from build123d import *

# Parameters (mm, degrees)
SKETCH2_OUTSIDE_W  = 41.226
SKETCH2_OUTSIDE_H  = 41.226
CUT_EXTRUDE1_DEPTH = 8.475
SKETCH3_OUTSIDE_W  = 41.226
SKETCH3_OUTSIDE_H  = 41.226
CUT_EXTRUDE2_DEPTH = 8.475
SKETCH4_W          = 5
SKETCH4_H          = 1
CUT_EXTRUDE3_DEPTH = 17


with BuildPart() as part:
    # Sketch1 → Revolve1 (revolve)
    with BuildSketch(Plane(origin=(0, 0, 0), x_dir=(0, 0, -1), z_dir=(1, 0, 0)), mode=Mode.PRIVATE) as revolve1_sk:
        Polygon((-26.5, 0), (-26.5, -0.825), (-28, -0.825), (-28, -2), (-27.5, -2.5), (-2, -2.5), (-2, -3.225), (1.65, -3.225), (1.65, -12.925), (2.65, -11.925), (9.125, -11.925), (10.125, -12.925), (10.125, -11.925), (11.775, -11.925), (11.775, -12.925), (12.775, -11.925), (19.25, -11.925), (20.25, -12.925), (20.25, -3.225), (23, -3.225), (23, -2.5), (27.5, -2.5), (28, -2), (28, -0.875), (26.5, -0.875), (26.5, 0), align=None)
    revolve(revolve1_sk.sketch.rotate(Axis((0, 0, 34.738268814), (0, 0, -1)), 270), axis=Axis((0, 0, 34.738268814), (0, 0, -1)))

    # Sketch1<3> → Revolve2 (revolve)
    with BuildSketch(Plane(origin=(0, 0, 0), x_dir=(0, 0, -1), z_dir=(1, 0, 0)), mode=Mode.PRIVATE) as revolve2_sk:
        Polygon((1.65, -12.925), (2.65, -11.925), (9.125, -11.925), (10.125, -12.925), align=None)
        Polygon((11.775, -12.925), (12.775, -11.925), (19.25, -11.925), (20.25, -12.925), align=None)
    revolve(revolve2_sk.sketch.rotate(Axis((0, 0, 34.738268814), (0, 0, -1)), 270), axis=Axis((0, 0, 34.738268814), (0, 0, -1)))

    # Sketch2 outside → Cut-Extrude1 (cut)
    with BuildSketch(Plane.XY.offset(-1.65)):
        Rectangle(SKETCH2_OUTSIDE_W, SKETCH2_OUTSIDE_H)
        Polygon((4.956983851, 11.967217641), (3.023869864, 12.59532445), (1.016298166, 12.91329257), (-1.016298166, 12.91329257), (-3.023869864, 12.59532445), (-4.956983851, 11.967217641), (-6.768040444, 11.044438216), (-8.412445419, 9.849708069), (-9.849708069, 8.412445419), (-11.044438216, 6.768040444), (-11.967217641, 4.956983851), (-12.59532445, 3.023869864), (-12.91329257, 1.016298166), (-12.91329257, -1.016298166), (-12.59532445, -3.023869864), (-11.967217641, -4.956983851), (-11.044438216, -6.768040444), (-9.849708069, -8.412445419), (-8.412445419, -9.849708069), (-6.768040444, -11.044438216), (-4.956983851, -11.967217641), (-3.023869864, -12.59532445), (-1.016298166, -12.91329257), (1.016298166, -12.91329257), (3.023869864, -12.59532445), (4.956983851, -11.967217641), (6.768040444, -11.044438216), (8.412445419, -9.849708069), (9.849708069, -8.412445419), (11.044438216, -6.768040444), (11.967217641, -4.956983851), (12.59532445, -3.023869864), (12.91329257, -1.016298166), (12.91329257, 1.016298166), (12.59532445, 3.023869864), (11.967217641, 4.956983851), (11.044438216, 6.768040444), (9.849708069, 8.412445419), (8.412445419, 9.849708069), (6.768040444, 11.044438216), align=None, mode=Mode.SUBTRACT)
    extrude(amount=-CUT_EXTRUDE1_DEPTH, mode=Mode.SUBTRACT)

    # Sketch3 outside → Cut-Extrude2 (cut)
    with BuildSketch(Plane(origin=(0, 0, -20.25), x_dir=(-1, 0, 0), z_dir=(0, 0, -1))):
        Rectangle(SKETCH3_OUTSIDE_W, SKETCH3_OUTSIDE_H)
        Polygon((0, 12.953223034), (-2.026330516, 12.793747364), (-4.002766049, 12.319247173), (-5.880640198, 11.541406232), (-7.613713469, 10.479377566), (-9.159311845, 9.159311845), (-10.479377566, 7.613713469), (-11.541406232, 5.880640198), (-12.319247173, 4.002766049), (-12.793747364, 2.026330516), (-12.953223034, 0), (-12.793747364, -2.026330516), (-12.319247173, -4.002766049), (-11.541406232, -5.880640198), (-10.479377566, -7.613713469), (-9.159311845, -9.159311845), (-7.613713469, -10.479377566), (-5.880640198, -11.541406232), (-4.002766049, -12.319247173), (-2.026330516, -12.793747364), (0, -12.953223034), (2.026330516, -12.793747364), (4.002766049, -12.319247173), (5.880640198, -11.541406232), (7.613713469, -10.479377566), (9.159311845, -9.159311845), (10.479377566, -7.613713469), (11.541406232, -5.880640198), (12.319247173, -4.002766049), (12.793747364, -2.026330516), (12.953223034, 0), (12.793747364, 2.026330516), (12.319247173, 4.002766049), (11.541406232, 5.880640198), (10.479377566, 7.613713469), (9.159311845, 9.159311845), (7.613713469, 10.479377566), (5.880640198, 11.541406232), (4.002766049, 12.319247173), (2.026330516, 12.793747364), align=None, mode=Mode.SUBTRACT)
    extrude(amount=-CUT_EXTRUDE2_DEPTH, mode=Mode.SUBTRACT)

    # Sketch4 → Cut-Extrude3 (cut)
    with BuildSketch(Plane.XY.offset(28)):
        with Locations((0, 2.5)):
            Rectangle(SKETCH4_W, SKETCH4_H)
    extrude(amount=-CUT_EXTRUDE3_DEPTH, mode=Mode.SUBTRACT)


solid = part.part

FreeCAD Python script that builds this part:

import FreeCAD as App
import Part
import Sketcher
from FreeCAD import Vector
Q = App.Units.Quantity

doc = App.newDocument("Part")
body = doc.addObject("PartDesign::Body", "Body")

sketch1 = body.newObject("Sketcher::SketchObject", "Sketch")
sketch1.AttachmentSupport = (doc.getObject("YZ_Plane"), [""])
sketch1.MapMode = "FlatFace"
sketch1.addGeometry([
    Part.LineSegment(Vector(0, 26.5, 0), Vector(-0.825, 26.5, 0)),
    Part.LineSegment(Vector(-0.825, 26.5, 0), Vector(-0.825, 28, 0)),
    Part.LineSegment(Vector(-0.825, 28, 0), Vector(-2, 28, 0)),
    Part.LineSegment(Vector(-2, 28, 0), Vector(-2.5, 27.5, 0)),
    Part.LineSegment(Vector(-2.5, 27.5, 0), Vector(-2.5, 2, 0)),
    Part.LineSegment(Vector(-2.5, 2, 0), Vector(-3.225, 2, 0)),
    Part.LineSegment(Vector(-3.225, 2, 0), Vector(-3.225, -1.65, 0)),
    Part.LineSegment(Vector(-3.225, -1.65, 0), Vector(-12.925, -1.65, 0)),
    Part.LineSegment(Vector(-12.925, -1.65, 0), Vector(-11.925, -2.65, 0)),
    Part.LineSegment(Vector(-11.925, -2.65, 0), Vector(-11.925, -9.125, 0)),
    Part.LineSegment(Vector(-11.925, -9.125, 0), Vector(-12.925, -10.125, 0)),
    Part.LineSegment(Vector(-12.925, -10.125, 0), Vector(-11.925, -10.125, 0)),
    Part.LineSegment(Vector(-11.925, -10.125, 0), Vector(-11.925, -11.775, 0)),
    Part.LineSegment(Vector(-11.925, -11.775, 0), Vector(-12.925, -11.775, 0)),
    Part.LineSegment(Vector(-12.925, -11.775, 0), Vector(-11.925, -12.775, 0)),
    Part.LineSegment(Vector(-11.925, -12.775, 0), Vector(-11.925, -19.25, 0)),
    Part.LineSegment(Vector(-11.925, -19.25, 0), Vector(-12.925, -20.25, 0)),
    Part.LineSegment(Vector(-12.925, -20.25, 0), Vector(-3.225, -20.25, 0)),
    Part.LineSegment(Vector(-3.225, -20.25, 0), Vector(-3.225, -23, 0)),
    Part.LineSegment(Vector(-3.225, -23, 0), Vector(-2.5, -23, 0)),
    Part.LineSegment(Vector(-2.5, -23, 0), Vector(-2.5, -27.5, 0)),
    Part.LineSegment(Vector(-2.5, -27.5, 0), Vector(-2, -28, 0)),
    Part.LineSegment(Vector(-2, -28, 0), Vector(-0.875, -28, 0)),
    Part.LineSegment(Vector(-0.875, -28, 0), Vector(-0.875, -26.5, 0)),
    Part.LineSegment(Vector(-0.875, -26.5, 0), Vector(0, -26.5, 0)),
    Part.LineSegment(Vector(0, -26.5, 0), Vector(0, 26.5, 0)),
], False)
sketch1.addConstraint([
    Sketcher.Constraint("Coincident", 0, 2, 1, 1),
    Sketcher.Constraint("Coincident", 1, 2, 2, 1),
    Sketcher.Constraint("Coincident", 2, 2, 3, 1),
    Sketcher.Constraint("Coincident", 3, 2, 4, 1),
    Sketcher.Constraint("Coincident", 4, 2, 5, 1),
    Sketcher.Constraint("Coincident", 5, 2, 6, 1),
    Sketcher.Constraint("Coincident", 6, 2, 7, 1),
    Sketcher.Constraint("Coincident", 7, 2, 8, 1),
    Sketcher.Constraint("Coincident", 8, 2, 9, 1),
    Sketcher.Constraint("Coincident", 9, 2, 10, 1),
    Sketcher.Constraint("Coincident", 10, 2, 11, 1),
    Sketcher.Constraint("Coincident", 11, 2, 12, 1),
    Sketcher.Constraint("Coincident", 12, 2, 13, 1),
    Sketcher.Constraint("Coincident", 13, 2, 14, 1),
    Sketcher.Constraint("Coincident", 14, 2, 15, 1),
    Sketcher.Constraint("Coincident", 15, 2, 16, 1),
    Sketcher.Constraint("Coincident", 16, 2, 17, 1),
    Sketcher.Constraint("Coincident", 17, 2, 18, 1),
    Sketcher.Constraint("Coincident", 18, 2, 19, 1),
    Sketcher.Constraint("Coincident", 19, 2, 20, 1),
    Sketcher.Constraint("Coincident", 20, 2, 21, 1),
    Sketcher.Constraint("Coincident", 21, 2, 22, 1),
    Sketcher.Constraint("Coincident", 22, 2, 23, 1),
    Sketcher.Constraint("Coincident", 23, 2, 24, 1),
    Sketcher.Constraint("Coincident", 24, 2, 25, 1),
    Sketcher.Constraint("Coincident", 25, 2, 0, 1),
    Sketcher.Constraint("Horizontal", 0),
    Sketcher.Constraint("Vertical", 1),
    Sketcher.Constraint("Horizontal", 2),
    Sketcher.Constraint("Vertical", 4),
    Sketcher.Constraint("Horizontal", 5),
    Sketcher.Constraint("Vertical", 6),
    Sketcher.Constraint("Horizontal", 7),
    Sketcher.Constraint("Vertical", 9),
    Sketcher.Constraint("Horizontal", 11),
    Sketcher.Constraint("Vertical", 12),
    Sketcher.Constraint("Horizontal", 13),
    Sketcher.Constraint("Vertical", 15),
    Sketcher.Constraint("Horizontal", 17),
    Sketcher.Constraint("Vertical", 18),
    Sketcher.Constraint("Horizontal", 19),
    Sketcher.Constraint("Vertical", 20),
    Sketcher.Constraint("Horizontal", 22),
    Sketcher.Constraint("Vertical", 23),
    Sketcher.Constraint("Horizontal", 24),
    Sketcher.Constraint("Vertical", 25),
    Sketcher.Constraint("Symmetric", 24, 2, 25, 2, -1, 1),
    Sketcher.Constraint("Symmetric", 3, 2, 20, 2, -1),
    Sketcher.Constraint("Symmetric", 2, 2, 21, 2, -1),
    Sketcher.Constraint("Perpendicular", 3, 8),
    Sketcher.Constraint("Perpendicular", 8, 10),
    Sketcher.Constraint("Perpendicular", 10, 14),
    Sketcher.Constraint("Perpendicular", 14, 16),
    Sketcher.Constraint("Perpendicular", 16, 21),
    Sketcher.Constraint("Vertical", 7, 2, 10, 2),
    Sketcher.Constraint("Vertical", 9, 2, 11, 2),
    Sketcher.Constraint("Vertical", 10, 2, 13, 2),
    Sketcher.Constraint("Vertical", 12, 2, 14, 2),
    Sketcher.Constraint("Vertical", 13, 2, 16, 2),
    Sketcher.Constraint("Vertical", 6, 2, 17, 2),
    Sketcher.Constraint("Equal", 9, 15),
    Sketcher.Constraint("DistanceX", 11, 1, 11, 2, 1.0),
    Sketcher.Constraint("DistanceY", 25, 1, 25, 2, 53.0),
    Sketcher.Constraint("DistanceX", 7, 2, 7, 1, 9.7),
    Sketcher.Constraint("DistanceY", 1, 1, 1, 2, 1.5),
    Sketcher.Constraint("DistanceY", 4, 2, 4, 1, 25.5),
    Sketcher.Constraint("DistanceY", 20, 2, 20, 1, 4.5),
    Sketcher.Constraint("DistanceX", 2, 2, -1, 1, 2.0),
    Sketcher.Constraint("DistanceY", -1, 1, 4, 2, 2.0),
    Sketcher.Constraint("DistanceY", 6, 2, 6, 1, 3.65),
    Sketcher.Constraint("DistanceY", 12, 2, 12, 1, 1.65),
    Sketcher.Constraint("DistanceY", 18, 2, 18, 1, 2.75),
    Sketcher.Constraint("DistanceX", 5, 2, 0, 2, 2.4),
    Sketcher.Constraint("DistanceX", 0, 2, 0, 1, 0.825),
    Sketcher.Constraint("DistanceX", 22, 1, 22, 2, 1.125),
])
revolution = body.newObject("PartDesign::Revolution", "Revolution")
revolution.Profile = sketch1
revolution.ReferenceAxis = (sketch1, ["V_Axis"])
revolution.Angle = 360

sketch2 = body.newObject("Sketcher::SketchObject", "Sketch001")
sketch2.AttachmentSupport = (doc.getObject("YZ_Plane"), [""])
sketch2.MapMode = "FlatFace"
sketch2.addGeometry([
    Part.LineSegment(Vector(-11.925, -2.65, 0), Vector(-12.925, -1.65, 0)),
    Part.LineSegment(Vector(-12.925, -1.65, 0), Vector(-12.925, -10.125, 0)),
    Part.LineSegment(Vector(-12.925, -10.125, 0), Vector(-11.925, -9.125, 0)),
    Part.LineSegment(Vector(-11.925, -9.125, 0), Vector(-11.925, -2.65, 0)),
    Part.LineSegment(Vector(-11.925, -12.775, 0), Vector(-12.925, -11.775, 0)),
    Part.LineSegment(Vector(-12.925, -11.775, 0), Vector(-12.925, -20.25, 0)),
    Part.LineSegment(Vector(-12.925, -20.25, 0), Vector(-11.925, -19.25, 0)),
    Part.LineSegment(Vector(-11.925, -19.25, 0), Vector(-11.925, -12.775, 0)),
], False)
sketch2.addConstraint([
    Sketcher.Constraint("Coincident", 0, 2, 1, 1),
    Sketcher.Constraint("Coincident", 1, 2, 2, 1),
    Sketcher.Constraint("Coincident", 2, 2, 3, 1),
    Sketcher.Constraint("Coincident", 3, 2, 0, 1),
    Sketcher.Constraint("Coincident", 4, 2, 5, 1),
    Sketcher.Constraint("Coincident", 5, 2, 6, 1),
    Sketcher.Constraint("Coincident", 6, 2, 7, 1),
    Sketcher.Constraint("Coincident", 7, 2, 4, 1),
    Sketcher.Constraint("Vertical", 1),
    Sketcher.Constraint("Vertical", 3),
    Sketcher.Constraint("Vertical", 5),
    Sketcher.Constraint("Vertical", 7),
    Sketcher.Constraint("Perpendicular", 0, 2),
    Sketcher.Constraint("Perpendicular", 2, 4),
    Sketcher.Constraint("Perpendicular", 4, 6),
    Sketcher.Constraint("Vertical", 1, 2, 4, 2),
    Sketcher.Constraint("Vertical", 3, 2, 6, 2),
    Sketcher.Constraint("Equal", 1, 5),
    Sketcher.Constraint("Equal", 0, 2),
    Sketcher.Constraint("DistanceX", 1, 2, 2, 2, 1.0),
    Sketcher.Constraint("DistanceY", 5, 2, 3, 2, 17.6),
    Sketcher.Constraint("DistanceY", 1, 2, 1, 1, 8.475),
    Sketcher.Constraint("DistanceY", 0, 2, -1, 1, 1.65),
    Sketcher.Constraint("DistanceX", 0, 2, -1, 1, 12.925),
])
revolution2 = body.newObject("PartDesign::Revolution", "Revolution001")
revolution2.Profile = sketch2
revolution2.ReferenceAxis = (sketch2, ["V_Axis"])
revolution2.Angle = 360

sketch3 = body.newObject("Sketcher::SketchObject", "Sketch002")
sketch3.AttachmentSupport = (doc.getObject("XY_Plane"), [""])
sketch3.MapMode = "FlatFace"
sketch3.AttachmentOffset = App.Placement(Vector(0, 0, -1.65), App.Rotation())
sketch3.addGeometry([
    Part.LineSegment(Vector(-20.613, 20.613, 0), Vector(-20.613, -20.613, 0)),
    Part.LineSegment(Vector(-20.613, -20.613, 0), Vector(20.613, -20.613, 0)),
    Part.LineSegment(Vector(20.613, -20.613, 0), Vector(20.613, 20.613, 0)),
    Part.LineSegment(Vector(20.613, 20.613, 0), Vector(-20.613, 20.613, 0)),
    Part.LineSegment(Vector(3.02387, 12.595324, 0), Vector(4.956984, 11.967218, 0)),
    Part.LineSegment(Vector(4.956984, 11.967218, 0), Vector(6.76804, 11.044438, 0)),
    Part.LineSegment(Vector(6.76804, 11.044438, 0), Vector(8.412445, 9.849708, 0)),
    Part.LineSegment(Vector(8.412445, 9.849708, 0), Vector(9.849708, 8.412445, 0)),
    Part.LineSegment(Vector(9.849708, 8.412445, 0), Vector(11.044438, 6.76804, 0)),
    Part.LineSegment(Vector(11.044438, 6.76804, 0), Vector(11.967218, 4.956984, 0)),
    Part.LineSegment(Vector(11.967218, 4.956984, 0), Vector(12.595324, 3.02387, 0)),
    Part.LineSegment(Vector(12.595324, 3.02387, 0), Vector(12.913293, 1.016298, 0)),
    Part.LineSegment(Vector(12.913293, 1.016298, 0), Vector(12.913293, -1.016298, 0)),
    Part.LineSegment(Vector(12.913293, -1.016298, 0), Vector(12.595324, -3.02387, 0)),
    Part.LineSegment(Vector(12.595324, -3.02387, 0), Vector(11.967218, -4.956984, 0)),
    Part.LineSegment(Vector(11.967218, -4.956984, 0), Vector(11.044438, -6.76804, 0)),
    Part.LineSegment(Vector(11.044438, -6.76804, 0), Vector(9.849708, -8.412445, 0)),
    Part.LineSegment(Vector(9.849708, -8.412445, 0), Vector(8.412445, -9.849708, 0)),
    Part.LineSegment(Vector(8.412445, -9.849708, 0), Vector(6.76804, -11.044438, 0)),
    Part.LineSegment(Vector(6.76804, -11.044438, 0), Vector(4.956984, -11.967218, 0)),
    Part.LineSegment(Vector(4.956984, -11.967218, 0), Vector(3.02387, -12.595324, 0)),
    Part.LineSegment(Vector(3.02387, -12.595324, 0), Vector(1.016298, -12.913293, 0)),
    Part.LineSegment(Vector(1.016298, -12.913293, 0), Vector(-1.016298, -12.913293, 0)),
    Part.LineSegment(Vector(-1.016298, -12.913293, 0), Vector(-3.02387, -12.595324, 0)),
    Part.LineSegment(Vector(-3.02387, -12.595324, 0), Vector(-4.956984, -11.967218, 0)),
    Part.LineSegment(Vector(-4.956984, -11.967218, 0), Vector(-6.76804, -11.044438, 0)),
    Part.LineSegment(Vector(-6.76804, -11.044438, 0), Vector(-8.412445, -9.849708, 0)),
    Part.LineSegment(Vector(-8.412445, -9.849708, 0), Vector(-9.849708, -8.412445, 0)),
    Part.LineSegment(Vector(-9.849708, -8.412445, 0), Vector(-11.044438, -6.76804, 0)),
    Part.LineSegment(Vector(-11.044438, -6.76804, 0), Vector(-11.967218, -4.956984, 0)),
    Part.LineSegment(Vector(-11.967218, -4.956984, 0), Vector(-12.595324, -3.02387, 0)),
    Part.LineSegment(Vector(-12.595324, -3.02387, 0), Vector(-12.913293, -1.016298, 0)),
    Part.LineSegment(Vector(-12.913293, -1.016298, 0), Vector(-12.913293, 1.016298, 0)),
    Part.LineSegment(Vector(-12.913293, 1.016298, 0), Vector(-12.595324, 3.02387, 0)),
    Part.LineSegment(Vector(-12.595324, 3.02387, 0), Vector(-11.967218, 4.956984, 0)),
    Part.LineSegment(Vector(-11.967218, 4.956984, 0), Vector(-11.044438, 6.76804, 0)),
    Part.LineSegment(Vector(-11.044438, 6.76804, 0), Vector(-9.849708, 8.412445, 0)),
    Part.LineSegment(Vector(-9.849708, 8.412445, 0), Vector(-8.412445, 9.849708, 0)),
    Part.LineSegment(Vector(-8.412445, 9.849708, 0), Vector(-6.76804, 11.044438, 0)),
    Part.LineSegment(Vector(-6.76804, 11.044438, 0), Vector(-4.956984, 11.967218, 0)),
    Part.LineSegment(Vector(-4.956984, 11.967218, 0), Vector(-3.02387, 12.595324, 0)),
    Part.LineSegment(Vector(-3.02387, 12.595324, 0), Vector(-1.016298, 12.913293, 0)),
    Part.LineSegment(Vector(-1.016298, 12.913293, 0), Vector(1.016298, 12.913293, 0)),
    Part.LineSegment(Vector(1.016298, 12.913293, 0), Vector(3.02387, 12.595324, 0)),
], False)
sketch3.addConstraint([
    Sketcher.Constraint("Coincident", 0, 2, 1, 1),
    Sketcher.Constraint("Coincident", 1, 2, 2, 1),
    Sketcher.Constraint("Coincident", 2, 2, 3, 1),
    Sketcher.Constraint("Coincident", 3, 2, 0, 1),
    Sketcher.Constraint("Coincident", 4, 2, 5, 1),
    Sketcher.Constraint("Coincident", 5, 2, 6, 1),
    Sketcher.Constraint("Coincident", 6, 2, 7, 1),
    Sketcher.Constraint("Coincident", 7, 2, 8, 1),
    Sketcher.Constraint("Coincident", 8, 2, 9, 1),
    Sketcher.Constraint("Coincident", 9, 2, 10, 1),
    Sketcher.Constraint("Coincident", 10, 2, 11, 1),
    Sketcher.Constraint("Coincident", 11, 2, 12, 1),
    Sketcher.Constraint("Coincident", 12, 2, 13, 1),
    Sketcher.Constraint("Coincident", 13, 2, 14, 1),
    Sketcher.Constraint("Coincident", 14, 2, 15, 1),
    Sketcher.Constraint("Coincident", 15, 2, 16, 1),
    Sketcher.Constraint("Coincident", 16, 2, 17, 1),
    Sketcher.Constraint("Coincident", 17, 2, 18, 1),
    Sketcher.Constraint("Coincident", 18, 2, 19, 1),
    Sketcher.Constraint("Coincident", 19, 2, 20, 1),
    Sketcher.Constraint("Coincident", 20, 2, 21, 1),
    Sketcher.Constraint("Coincident", 21, 2, 22, 1),
    Sketcher.Constraint("Coincident", 22, 2, 23, 1),
    Sketcher.Constraint("Coincident", 23, 2, 24, 1),
    Sketcher.Constraint("Coincident", 24, 2, 25, 1),
    Sketcher.Constraint("Coincident", 25, 2, 26, 1),
    Sketcher.Constraint("Coincident", 26, 2, 27, 1),
    Sketcher.Constraint("Coincident", 27, 2, 28, 1),
    Sketcher.Constraint("Coincident", 28, 2, 29, 1),
    Sketcher.Constraint("Coincident", 29, 2, 30, 1),
    Sketcher.Constraint("Coincident", 30, 2, 31, 1),
    Sketcher.Constraint("Coincident", 31, 2, 32, 1),
    Sketcher.Constraint("Coincident", 32, 2, 33, 1),
    Sketcher.Constraint("Coincident", 33, 2, 34, 1),
    Sketcher.Constraint("Coincident", 34, 2, 35, 1),
    Sketcher.Constraint("Coincident", 35, 2, 36, 1),
    Sketcher.Constraint("Coincident", 36, 2, 37, 1),
    Sketcher.Constraint("Coincident", 37, 2, 38, 1),
    Sketcher.Constraint("Coincident", 38, 2, 39, 1),
    Sketcher.Constraint("Coincident", 39, 2, 40, 1),
    Sketcher.Constraint("Coincident", 40, 2, 41, 1),
    Sketcher.Constraint("Coincident", 41, 2, 42, 1),
    Sketcher.Constraint("Coincident", 42, 2, 43, 1),
    Sketcher.Constraint("Coincident", 43, 2, 4, 1),
    Sketcher.Constraint("Vertical", 0),
    Sketcher.Constraint("Horizontal", 1),
    Sketcher.Constraint("Vertical", 2),
    Sketcher.Constraint("Horizontal", 3),
    Sketcher.Constraint("Vertical", 12),
    Sketcher.Constraint("Horizontal", 22),
    Sketcher.Constraint("Vertical", 32),
    Sketcher.Constraint("Horizontal", 42),
    Sketcher.Constraint("Symmetric", 0, 2, 2, 2, -1, 1),
    Sketcher.Constraint("Symmetric", 4, 2, 24, 2, -1, 1),
    Sketcher.Constraint("Symmetric", 5, 2, 25, 2, -1, 1),
    Sketcher.Constraint("Symmetric", 6, 2, 26, 2, -1, 1),
    Sketcher.Constraint("Symmetric", 7, 2, 27, 2, -1, 1),
    Sketcher.Constraint("Symmetric", 8, 2, 28, 2, -1, 1),
    Sketcher.Constraint("Symmetric", 9, 2, 29, 2, -1, 1),
    Sketcher.Constraint("Symmetric", 10, 2, 30, 2, -1, 1),
    Sketcher.Constraint("Symmetric", 11, 2, 31, 2, -1, 1),
    Sketcher.Constraint("Symmetric", 13, 2, 33, 2, -1, 1),
    Sketcher.Constraint("Symmetric", 14, 2, 34, 2, -1, 1),
    Sketcher.Constraint("Symmetric", 15, 2, 35, 2, -1, 1),
    Sketcher.Constraint("Symmetric", 16, 2, 36, 2, -1, 1),
    Sketcher.Constraint("Symmetric", 17, 2, 37, 2, -1, 1),
    Sketcher.Constraint("Symmetric", 18, 2, 38, 2, -1, 1),
    Sketcher.Constraint("Symmetric", 19, 2, 39, 2, -1, 1),
    Sketcher.Constraint("Symmetric", 20, 2, 40, 2, -1, 1),
    Sketcher.Constraint("Symmetric", 21, 2, 41, 2, -1, 1),
    Sketcher.Constraint("Symmetric", 23, 2, 43, 2, -1, 1),
    Sketcher.Constraint("Symmetric", 20, 2, 23, 2, -2),
    Sketcher.Constraint("Symmetric", 19, 2, 24, 2, -2),
    Sketcher.Constraint("Symmetric", 18, 2, 25, 2, -2),
    Sketcher.Constraint("Symmetric", 17, 2, 26, 2, -2),
    Sketcher.Constraint("Symmetric", 16, 2, 27, 2, -2),
    Sketcher.Constraint("Symmetric", 15, 2, 28, 2, -2),
    Sketcher.Constraint("Symmetric", 14, 2, 29, 2, -2),
    Sketcher.Constraint("Symmetric", 13, 2, 30, 2, -2),
    Sketcher.Constraint("Perpendicular", 4, 14),
    Sketcher.Constraint("Perpendicular", 5, 15),
    Sketcher.Constraint("Perpendicular", 6, 16),
    Sketcher.Constraint("Perpendicular", 7, 17),
    Sketcher.Constraint("Perpendicular", 11, 21),
    Sketcher.Constraint("Perpendicular", 13, 23),
    Sketcher.Constraint("Perpendicular", 23, 33),
    Sketcher.Constraint("Perpendicular", 33, 43),
    Sketcher.Constraint("Horizontal", 12, 2, 31, 2),
    Sketcher.Constraint("Equal", 3, 0),
    Sketcher.Constraint("Equal", 42, 12),
    Sketcher.Constraint("Equal", 4, 5),
    Sketcher.Constraint("Equal", 5, 6),
    Sketcher.Constraint("Equal", 6, 7),
    Sketcher.Constraint("Equal", 7, 8),
    Sketcher.Constraint("Equal", 8, 9),
    Sketcher.Constraint("Equal", 9, 10),
    Sketcher.Constraint("Equal", 10, 11),
    Sketcher.Constraint("Equal", 20, 21),
    Sketcher.Constraint("Angle", 4, Q("-18 deg")),
    Sketcher.Constraint("Angle", 5, Q("-27 deg")),
    Sketcher.Constraint("Angle", 6, Q("-36 deg")),
    Sketcher.Constraint("Angle", 11, Q("-81 deg")),
    Sketcher.Constraint("DistanceX", 1, 1, 1, 2, 41.226),
    Sketcher.Constraint("DistanceY", -1, 1, 11, 2, 1.016298),
    Sketcher.Constraint("DistanceX", -1, 1, 5, 2, 6.76804),
])
pocket1 = body.newObject("PartDesign::Pocket", "Pocket")
pocket1.Profile = sketch3
pocket1.Length = 8.475

sketch4 = body.newObject("Sketcher::SketchObject", "Sketch003")
sketch4.AttachmentSupport = (doc.getObject("XY_Plane"), [""])
sketch4.MapMode = "FlatFace"
sketch4.AttachmentOffset = App.Placement(Vector(0, 0, -20.25), App.Rotation())
sketch4.addGeometry([
    Part.LineSegment(Vector(20.613, 20.613, 0), Vector(20.613, -20.613, 0)),
    Part.LineSegment(Vector(20.613, -20.613, 0), Vector(-20.613, -20.613, 0)),
    Part.LineSegment(Vector(-20.613, -20.613, 0), Vector(-20.613, 20.613, 0)),
    Part.LineSegment(Vector(-20.613, 20.613, 0), Vector(20.613, 20.613, 0)),
    Part.LineSegment(Vector(2.026331, 12.793747, 0), Vector(0, 12.953223, 0)),
    Part.LineSegment(Vector(0, 12.953223, 0), Vector(-2.026331, 12.793747, 0)),
    Part.LineSegment(Vector(-2.026331, 12.793747, 0), Vector(-4.002766, 12.319247, 0)),
    Part.LineSegment(Vector(-4.002766, 12.319247, 0), Vector(-5.88064, 11.541406, 0)),
    Part.LineSegment(Vector(-5.88064, 11.541406, 0), Vector(-7.613713, 10.479378, 0)),
    Part.LineSegment(Vector(-7.613713, 10.479378, 0), Vector(-9.159312, 9.159312, 0)),
    Part.LineSegment(Vector(-9.159312, 9.159312, 0), Vector(-10.479378, 7.613713, 0)),
    Part.LineSegment(Vector(-10.479378, 7.613713, 0), Vector(-11.541406, 5.88064, 0)),
    Part.LineSegment(Vector(-11.541406, 5.88064, 0), Vector(-12.319247, 4.002766, 0)),
    Part.LineSegment(Vector(-12.319247, 4.002766, 0), Vector(-12.793747, 2.026331, 0)),
    Part.LineSegment(Vector(-12.793747, 2.026331, 0), Vector(-12.953223, 0, 0)),
    Part.LineSegment(Vector(-12.953223, 0, 0), Vector(-12.793747, -2.026331, 0)),
    Part.LineSegment(Vector(-12.793747, -2.026331, 0), Vector(-12.319247, -4.002766, 0)),
    Part.LineSegment(Vector(-12.319247, -4.002766, 0), Vector(-11.541406, -5.88064, 0)),
    Part.LineSegment(Vector(-11.541406, -5.88064, 0), Vector(-10.479378, -7.613713, 0)),
    Part.LineSegment(Vector(-10.479378, -7.613713, 0), Vector(-9.159312, -9.159312, 0)),
    Part.LineSegment(Vector(-9.159312, -9.159312, 0), Vector(-7.613713, -10.479378, 0)),
    Part.LineSegment(Vector(-7.613713, -10.479378, 0), Vector(-5.88064, -11.541406, 0)),
    Part.LineSegment(Vector(-5.88064, -11.541406, 0), Vector(-4.002766, -12.319247, 0)),
    Part.LineSegment(Vector(-4.002766, -12.319247, 0), Vector(-2.026331, -12.793747, 0)),
    Part.LineSegment(Vector(-2.026331, -12.793747, 0), Vector(0, -12.953223, 0)),
    Part.LineSegment(Vector(0, -12.953223, 0), Vector(2.026331, -12.793747, 0)),
    Part.LineSegment(Vector(2.026331, -12.793747, 0), Vector(4.002766, -12.319247, 0)),
    Part.LineSegment(Vector(4.002766, -12.319247, 0), Vector(5.88064, -11.541406, 0)),
    Part.LineSegment(Vector(5.88064, -11.541406, 0), Vector(7.613713, -10.479378, 0)),
    Part.LineSegment(Vector(7.613713, -10.479378, 0), Vector(9.159312, -9.159312, 0)),
    Part.LineSegment(Vector(9.159312, -9.159312, 0), Vector(10.479378, -7.613713, 0)),
    Part.LineSegment(Vector(10.479378, -7.613713, 0), Vector(11.541406, -5.88064, 0)),
    Part.LineSegment(Vector(11.541406, -5.88064, 0), Vector(12.319247, -4.002766, 0)),
    Part.LineSegment(Vector(12.319247, -4.002766, 0), Vector(12.793747, -2.026331, 0)),
    Part.LineSegment(Vector(12.793747, -2.026331, 0), Vector(12.953223, 0, 0)),
    Part.LineSegment(Vector(12.953223, 0, 0), Vector(12.793747, 2.026331, 0)),
    Part.LineSegment(Vector(12.793747, 2.026331, 0), Vector(12.319247, 4.002766, 0)),
    Part.LineSegment(Vector(12.319247, 4.002766, 0), Vector(11.541406, 5.88064, 0)),
    Part.LineSegment(Vector(11.541406, 5.88064, 0), Vector(10.479378, 7.613713, 0)),
    Part.LineSegment(Vector(10.479378, 7.613713, 0), Vector(9.159312, 9.159312, 0)),
    Part.LineSegment(Vector(9.159312, 9.159312, 0), Vector(7.613713, 10.479378, 0)),
    Part.LineSegment(Vector(7.613713, 10.479378, 0), Vector(5.88064, 11.541406, 0)),
    Part.LineSegment(Vector(5.88064, 11.541406, 0), Vector(4.002766, 12.319247, 0)),
    Part.LineSegment(Vector(4.002766, 12.319247, 0), Vector(2.026331, 12.793747, 0)),
], False)
sketch4.addConstraint([
    Sketcher.Constraint("Coincident", 0, 2, 1, 1),
    Sketcher.Constraint("Coincident", 1, 2, 2, 1),
    Sketcher.Constraint("Coincident", 2, 2, 3, 1),
    Sketcher.Constraint("Coincident", 3, 2, 0, 1),
    Sketcher.Constraint("Coincident", 4, 2, 5, 1),
    Sketcher.Constraint("Coincident", 5, 2, 6, 1),
    Sketcher.Constraint("Coincident", 6, 2, 7, 1),
    Sketcher.Constraint("Coincident", 7, 2, 8, 1),
    Sketcher.Constraint("Coincident", 8, 2, 9, 1),
    Sketcher.Constraint("Coincident", 9, 2, 10, 1),
    Sketcher.Constraint("Coincident", 10, 2, 11, 1),
    Sketcher.Constraint("Coincident", 11, 2, 12, 1),
    Sketcher.Constraint("Coincident", 12, 2, 13, 1),
    Sketcher.Constraint("Coincident", 13, 2, 14, 1),
    Sketcher.Constraint("Coincident", 14, 2, 15, 1),
    Sketcher.Constraint("Coincident", 15, 2, 16, 1),
    Sketcher.Constraint("Coincident", 16, 2, 17, 1),
    Sketcher.Constraint("Coincident", 17, 2, 18, 1),
    Sketcher.Constraint("Coincident", 18, 2, 19, 1),
    Sketcher.Constraint("Coincident", 19, 2, 20, 1),
    Sketcher.Constraint("Coincident", 20, 2, 21, 1),
    Sketcher.Constraint("Coincident", 21, 2, 22, 1),
    Sketcher.Constraint("Coincident", 22, 2, 23, 1),
    Sketcher.Constraint("Coincident", 23, 2, 24, 1),
    Sketcher.Constraint("Coincident", 24, 2, 25, 1),
    Sketcher.Constraint("Coincident", 25, 2, 26, 1),
    Sketcher.Constraint("Coincident", 26, 2, 27, 1),
    Sketcher.Constraint("Coincident", 27, 2, 28, 1),
    Sketcher.Constraint("Coincident", 28, 2, 29, 1),
    Sketcher.Constraint("Coincident", 29, 2, 30, 1),
    Sketcher.Constraint("Coincident", 30, 2, 31, 1),
    Sketcher.Constraint("Coincident", 31, 2, 32, 1),
    Sketcher.Constraint("Coincident", 32, 2, 33, 1),
    Sketcher.Constraint("Coincident", 33, 2, 34, 1),
    Sketcher.Constraint("Coincident", 34, 2, 35, 1),
    Sketcher.Constraint("Coincident", 35, 2, 36, 1),
    Sketcher.Constraint("Coincident", 36, 2, 37, 1),
    Sketcher.Constraint("Coincident", 37, 2, 38, 1),
    Sketcher.Constraint("Coincident", 38, 2, 39, 1),
    Sketcher.Constraint("Coincident", 39, 2, 40, 1),
    Sketcher.Constraint("Coincident", 40, 2, 41, 1),
    Sketcher.Constraint("Coincident", 41, 2, 42, 1),
    Sketcher.Constraint("Coincident", 42, 2, 43, 1),
    Sketcher.Constraint("Coincident", 43, 2, 4, 1),
    Sketcher.Constraint("Vertical", 0),
    Sketcher.Constraint("Horizontal", 1),
    Sketcher.Constraint("Vertical", 2),
    Sketcher.Constraint("Horizontal", 3),
    Sketcher.Constraint("Symmetric", 0, 2, 2, 2, -1, 1),
    Sketcher.Constraint("Symmetric", 4, 2, 24, 2, -1, 1),
    Sketcher.Constraint("Symmetric", 5, 2, 25, 2, -1, 1),
    Sketcher.Constraint("Symmetric", 6, 2, 26, 2, -1, 1),
    Sketcher.Constraint("Symmetric", 7, 2, 27, 2, -1, 1),
    Sketcher.Constraint("Symmetric", 8, 2, 28, 2, -1, 1),
    Sketcher.Constraint("Symmetric", 9, 2, 29, 2, -1, 1),
    Sketcher.Constraint("Symmetric", 10, 2, 30, 2, -1, 1),
    Sketcher.Constraint("Symmetric", 11, 2, 31, 2, -1, 1),
    Sketcher.Constraint("Symmetric", 12, 2, 32, 2, -1, 1),
    Sketcher.Constraint("Symmetric", 13, 2, 33, 2, -1, 1),
    Sketcher.Constraint("Symmetric", 14, 2, 34, 2, -1, 1),
    Sketcher.Constraint("Symmetric", 15, 2, 35, 2, -1, 1),
    Sketcher.Constraint("Symmetric", 16, 2, 36, 2, -1, 1),
    Sketcher.Constraint("Symmetric", 17, 2, 37, 2, -1, 1),
    Sketcher.Constraint("Symmetric", 18, 2, 38, 2, -1, 1),
    Sketcher.Constraint("Symmetric", 19, 2, 39, 2, -1, 1),
    Sketcher.Constraint("Symmetric", 20, 2, 40, 2, -1, 1),
    Sketcher.Constraint("Symmetric", 21, 2, 41, 2, -1, 1),
    Sketcher.Constraint("Symmetric", 22, 2, 42, 2, -1, 1),
    Sketcher.Constraint("Symmetric", 23, 2, 43, 2, -1, 1),
    Sketcher.Constraint("Symmetric", 23, 2, 25, 2, -2),
    Sketcher.Constraint("Symmetric", 22, 2, 26, 2, -2),
    Sketcher.Constraint("Symmetric", 21, 2, 27, 2, -2),
    Sketcher.Constraint("Symmetric", 20, 2, 28, 2, -2),
    Sketcher.Constraint("Symmetric", 19, 2, 29, 2, -2),
    Sketcher.Constraint("Symmetric", 18, 2, 30, 2, -2),
    Sketcher.Constraint("Symmetric", 17, 2, 31, 2, -2),
    Sketcher.Constraint("Symmetric", 16, 2, 32, 2, -2),
    Sketcher.Constraint("Symmetric", 15, 2, 33, 2, -2),
    Sketcher.Constraint("PointOnObject", 4, 2, -2),
    Sketcher.Constraint("PointOnObject", 14, 2, -1),
    Sketcher.Constraint("Perpendicular", 4, 14),
    Sketcher.Constraint("Perpendicular", 6, 16),
    Sketcher.Constraint("Perpendicular", 7, 17),
    Sketcher.Constraint("Perpendicular", 8, 18),
    Sketcher.Constraint("Perpendicular", 9, 19),
    Sketcher.Constraint("Equal", 3, 0),
    Sketcher.Constraint("Equal", 5, 6),
    Sketcher.Constraint("Equal", 6, 7),
    Sketcher.Constraint("Equal", 7, 8),
    Sketcher.Constraint("Equal", 8, 9),
    Sketcher.Constraint("Equal", 9, 10),
    Sketcher.Constraint("Equal", 10, 11),
    Sketcher.Constraint("Equal", 11, 12),
    Sketcher.Constraint("Equal", 12, 13),
    Sketcher.Constraint("Equal", 13, 14),
    Sketcher.Constraint("Angle", 4, Q("175.5 deg")),
    Sketcher.Constraint("Angle", 6, Q("-166.5 deg")),
    Sketcher.Constraint("Angle", 7, Q("-157.5 deg")),
    Sketcher.Constraint("Angle", 8, Q("-148.5 deg")),
    Sketcher.Constraint("Angle", 9, Q("-139.5 deg")),
    Sketcher.Constraint("DistanceX", 1, 2, 1, 1, 41.226),
    Sketcher.Constraint("DistanceY", 6, 2, 5, 2, 0.4745),
])
pocket2 = body.newObject("PartDesign::Pocket", "Pocket001")
pocket2.Profile = sketch4
pocket2.Length = 8.475
pocket2.Reversed = True

sketch5 = body.newObject("Sketcher::SketchObject", "Sketch004")
sketch5.AttachmentSupport = (doc.getObject("XY_Plane"), [""])
sketch5.MapMode = "FlatFace"
sketch5.AttachmentOffset = App.Placement(Vector(0, 0, 28), App.Rotation())
sketch5.addGeometry([
    Part.LineSegment(Vector(-2.5, 3, 0), Vector(-2.5, 2, 0)),
    Part.LineSegment(Vector(-2.5, 2, 0), Vector(2.5, 2, 0)),
    Part.LineSegment(Vector(2.5, 2, 0), Vector(2.5, 3, 0)),
    Part.LineSegment(Vector(2.5, 3, 0), Vector(-2.5, 3, 0)),
], False)
sketch5.addConstraint([
    Sketcher.Constraint("Coincident", 0, 2, 1, 1),
    Sketcher.Constraint("Coincident", 1, 2, 2, 1),
    Sketcher.Constraint("Coincident", 2, 2, 3, 1),
    Sketcher.Constraint("Coincident", 3, 2, 0, 1),
    Sketcher.Constraint("Vertical", 0),
    Sketcher.Constraint("Horizontal", 1),
    Sketcher.Constraint("Vertical", 2),
    Sketcher.Constraint("Horizontal", 3),
    Sketcher.Constraint("DistanceX", 1, 1, 1, 2, 5.0),
    Sketcher.Constraint("DistanceY", 0, 2, 0, 1, 1.0),
    Sketcher.Constraint("DistanceY", -1, 1, 0, 2, 2.0),
    Sketcher.Constraint("DistanceX", 0, 2, -1, 1, 2.5),
])
pocket3 = body.newObject("PartDesign::Pocket", "Pocket002")
pocket3.Profile = sketch5
pocket3.Length = 17

doc.recompute()
